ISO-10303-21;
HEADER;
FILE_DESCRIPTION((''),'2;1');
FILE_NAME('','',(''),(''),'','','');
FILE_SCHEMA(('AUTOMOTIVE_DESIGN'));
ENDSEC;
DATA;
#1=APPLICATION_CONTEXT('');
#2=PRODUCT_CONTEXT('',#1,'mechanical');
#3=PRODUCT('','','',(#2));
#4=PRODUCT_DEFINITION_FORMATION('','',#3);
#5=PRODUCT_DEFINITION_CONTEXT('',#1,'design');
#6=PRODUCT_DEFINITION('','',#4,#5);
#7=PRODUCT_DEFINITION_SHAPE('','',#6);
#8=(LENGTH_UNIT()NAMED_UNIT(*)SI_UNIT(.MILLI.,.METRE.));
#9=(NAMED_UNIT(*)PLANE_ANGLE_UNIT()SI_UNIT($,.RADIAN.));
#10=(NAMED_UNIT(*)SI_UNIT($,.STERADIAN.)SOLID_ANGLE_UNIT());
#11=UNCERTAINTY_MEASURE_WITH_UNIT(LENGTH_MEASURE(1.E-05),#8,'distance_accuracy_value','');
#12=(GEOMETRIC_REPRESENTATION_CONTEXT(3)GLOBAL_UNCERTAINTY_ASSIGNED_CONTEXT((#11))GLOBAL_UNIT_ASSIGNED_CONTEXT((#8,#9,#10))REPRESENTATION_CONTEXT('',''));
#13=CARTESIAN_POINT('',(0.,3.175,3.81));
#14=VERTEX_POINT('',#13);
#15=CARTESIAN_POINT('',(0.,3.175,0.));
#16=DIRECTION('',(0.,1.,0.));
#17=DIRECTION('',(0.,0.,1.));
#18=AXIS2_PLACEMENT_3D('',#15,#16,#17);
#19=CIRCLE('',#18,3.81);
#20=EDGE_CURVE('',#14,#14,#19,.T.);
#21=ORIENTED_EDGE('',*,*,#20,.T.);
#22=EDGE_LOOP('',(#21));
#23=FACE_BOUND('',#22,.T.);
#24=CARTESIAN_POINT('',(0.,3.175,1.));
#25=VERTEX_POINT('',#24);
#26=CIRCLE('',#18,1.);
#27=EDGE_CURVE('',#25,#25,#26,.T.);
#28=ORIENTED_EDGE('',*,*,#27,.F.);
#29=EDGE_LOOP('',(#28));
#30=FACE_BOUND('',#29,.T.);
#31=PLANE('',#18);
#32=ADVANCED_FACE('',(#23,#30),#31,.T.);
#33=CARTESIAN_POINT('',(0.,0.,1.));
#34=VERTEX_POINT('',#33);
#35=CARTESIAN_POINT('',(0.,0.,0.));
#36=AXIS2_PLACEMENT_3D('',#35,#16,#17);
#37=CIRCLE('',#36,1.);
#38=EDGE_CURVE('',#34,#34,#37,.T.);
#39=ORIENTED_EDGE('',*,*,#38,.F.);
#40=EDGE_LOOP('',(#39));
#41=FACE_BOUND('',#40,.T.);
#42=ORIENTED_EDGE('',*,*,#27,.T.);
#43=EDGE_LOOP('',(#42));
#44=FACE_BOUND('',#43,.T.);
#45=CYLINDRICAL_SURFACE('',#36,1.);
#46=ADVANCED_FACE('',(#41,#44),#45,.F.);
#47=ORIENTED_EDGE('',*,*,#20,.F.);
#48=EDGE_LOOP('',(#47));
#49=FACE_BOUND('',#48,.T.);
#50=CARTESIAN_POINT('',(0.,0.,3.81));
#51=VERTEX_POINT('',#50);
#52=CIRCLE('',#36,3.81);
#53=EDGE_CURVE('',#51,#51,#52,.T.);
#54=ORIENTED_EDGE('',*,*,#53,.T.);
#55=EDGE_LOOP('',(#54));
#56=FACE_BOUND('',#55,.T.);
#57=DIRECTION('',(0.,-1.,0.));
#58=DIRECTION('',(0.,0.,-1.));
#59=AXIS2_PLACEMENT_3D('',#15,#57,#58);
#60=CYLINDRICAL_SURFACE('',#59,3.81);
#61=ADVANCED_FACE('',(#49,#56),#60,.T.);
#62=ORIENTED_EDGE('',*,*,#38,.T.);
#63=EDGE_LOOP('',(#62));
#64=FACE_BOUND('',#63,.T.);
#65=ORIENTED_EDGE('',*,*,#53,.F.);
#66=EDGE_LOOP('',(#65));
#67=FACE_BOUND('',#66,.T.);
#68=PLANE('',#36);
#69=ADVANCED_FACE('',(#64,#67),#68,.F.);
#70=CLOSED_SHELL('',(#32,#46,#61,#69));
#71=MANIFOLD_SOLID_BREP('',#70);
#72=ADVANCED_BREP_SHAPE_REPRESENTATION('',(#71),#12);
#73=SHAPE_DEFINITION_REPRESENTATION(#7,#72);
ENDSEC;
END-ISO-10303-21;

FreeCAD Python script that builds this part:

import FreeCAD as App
import Part
import Sketcher

V = App.Vector
Q = App.Units.Quantity

doc = App.newDocument("Part")
body = doc.addObject("PartDesign::Body", "Body")

# Sketch on XZ plane
sketch1 = body.newObject("Sketcher::SketchObject", "Sketch")
sketch1.AttachmentSupport = (doc.getObject("XZ_Plane"), [""])
sketch1.MapMode = "FlatFace"
sketch1.addGeometry(Part.Circle(V(0, 0, 0), V(0, 0, 1), 3.8), False)
sketch1.addConstraint([
    Sketcher.Constraint("Coincident", 0, 3, -1, 1),
    Sketcher.Constraint("Diameter", 0, Q("0.3 in")),
])
pad1 = body.newObject("PartDesign::Pad", "Pad")
pad1.Profile = sketch1
pad1.Length = Q("0.125 in")
pad1.Reversed = True

# Sketch on XZ plane
sketch2 = body.newObject("Sketcher::SketchObject", "Sketch001")
sketch2.AttachmentSupport = (doc.getObject("XZ_Plane"), [""])
sketch2.MapMode = "FlatFace"
sketch2.AttachmentOffset = App.Placement(V(0, 0, -0.125 * 25.4), App.Rotation())
sketch2.addGeometry(Part.Circle(V(0, 0, 0), V(0, 0, 1), 1), False)
sketch2.addConstraint([
    Sketcher.Constraint("Coincident", 0, 3, -1, 1),
    Sketcher.Constraint("Diameter", 0, 2.0),
])
pocket1 = body.newObject("PartDesign::Pocket", "Pocket")
pocket1.Profile = sketch2
pocket1.Length = Q("0.125 in")
pocket1.Reversed = True

doc.recompute()
